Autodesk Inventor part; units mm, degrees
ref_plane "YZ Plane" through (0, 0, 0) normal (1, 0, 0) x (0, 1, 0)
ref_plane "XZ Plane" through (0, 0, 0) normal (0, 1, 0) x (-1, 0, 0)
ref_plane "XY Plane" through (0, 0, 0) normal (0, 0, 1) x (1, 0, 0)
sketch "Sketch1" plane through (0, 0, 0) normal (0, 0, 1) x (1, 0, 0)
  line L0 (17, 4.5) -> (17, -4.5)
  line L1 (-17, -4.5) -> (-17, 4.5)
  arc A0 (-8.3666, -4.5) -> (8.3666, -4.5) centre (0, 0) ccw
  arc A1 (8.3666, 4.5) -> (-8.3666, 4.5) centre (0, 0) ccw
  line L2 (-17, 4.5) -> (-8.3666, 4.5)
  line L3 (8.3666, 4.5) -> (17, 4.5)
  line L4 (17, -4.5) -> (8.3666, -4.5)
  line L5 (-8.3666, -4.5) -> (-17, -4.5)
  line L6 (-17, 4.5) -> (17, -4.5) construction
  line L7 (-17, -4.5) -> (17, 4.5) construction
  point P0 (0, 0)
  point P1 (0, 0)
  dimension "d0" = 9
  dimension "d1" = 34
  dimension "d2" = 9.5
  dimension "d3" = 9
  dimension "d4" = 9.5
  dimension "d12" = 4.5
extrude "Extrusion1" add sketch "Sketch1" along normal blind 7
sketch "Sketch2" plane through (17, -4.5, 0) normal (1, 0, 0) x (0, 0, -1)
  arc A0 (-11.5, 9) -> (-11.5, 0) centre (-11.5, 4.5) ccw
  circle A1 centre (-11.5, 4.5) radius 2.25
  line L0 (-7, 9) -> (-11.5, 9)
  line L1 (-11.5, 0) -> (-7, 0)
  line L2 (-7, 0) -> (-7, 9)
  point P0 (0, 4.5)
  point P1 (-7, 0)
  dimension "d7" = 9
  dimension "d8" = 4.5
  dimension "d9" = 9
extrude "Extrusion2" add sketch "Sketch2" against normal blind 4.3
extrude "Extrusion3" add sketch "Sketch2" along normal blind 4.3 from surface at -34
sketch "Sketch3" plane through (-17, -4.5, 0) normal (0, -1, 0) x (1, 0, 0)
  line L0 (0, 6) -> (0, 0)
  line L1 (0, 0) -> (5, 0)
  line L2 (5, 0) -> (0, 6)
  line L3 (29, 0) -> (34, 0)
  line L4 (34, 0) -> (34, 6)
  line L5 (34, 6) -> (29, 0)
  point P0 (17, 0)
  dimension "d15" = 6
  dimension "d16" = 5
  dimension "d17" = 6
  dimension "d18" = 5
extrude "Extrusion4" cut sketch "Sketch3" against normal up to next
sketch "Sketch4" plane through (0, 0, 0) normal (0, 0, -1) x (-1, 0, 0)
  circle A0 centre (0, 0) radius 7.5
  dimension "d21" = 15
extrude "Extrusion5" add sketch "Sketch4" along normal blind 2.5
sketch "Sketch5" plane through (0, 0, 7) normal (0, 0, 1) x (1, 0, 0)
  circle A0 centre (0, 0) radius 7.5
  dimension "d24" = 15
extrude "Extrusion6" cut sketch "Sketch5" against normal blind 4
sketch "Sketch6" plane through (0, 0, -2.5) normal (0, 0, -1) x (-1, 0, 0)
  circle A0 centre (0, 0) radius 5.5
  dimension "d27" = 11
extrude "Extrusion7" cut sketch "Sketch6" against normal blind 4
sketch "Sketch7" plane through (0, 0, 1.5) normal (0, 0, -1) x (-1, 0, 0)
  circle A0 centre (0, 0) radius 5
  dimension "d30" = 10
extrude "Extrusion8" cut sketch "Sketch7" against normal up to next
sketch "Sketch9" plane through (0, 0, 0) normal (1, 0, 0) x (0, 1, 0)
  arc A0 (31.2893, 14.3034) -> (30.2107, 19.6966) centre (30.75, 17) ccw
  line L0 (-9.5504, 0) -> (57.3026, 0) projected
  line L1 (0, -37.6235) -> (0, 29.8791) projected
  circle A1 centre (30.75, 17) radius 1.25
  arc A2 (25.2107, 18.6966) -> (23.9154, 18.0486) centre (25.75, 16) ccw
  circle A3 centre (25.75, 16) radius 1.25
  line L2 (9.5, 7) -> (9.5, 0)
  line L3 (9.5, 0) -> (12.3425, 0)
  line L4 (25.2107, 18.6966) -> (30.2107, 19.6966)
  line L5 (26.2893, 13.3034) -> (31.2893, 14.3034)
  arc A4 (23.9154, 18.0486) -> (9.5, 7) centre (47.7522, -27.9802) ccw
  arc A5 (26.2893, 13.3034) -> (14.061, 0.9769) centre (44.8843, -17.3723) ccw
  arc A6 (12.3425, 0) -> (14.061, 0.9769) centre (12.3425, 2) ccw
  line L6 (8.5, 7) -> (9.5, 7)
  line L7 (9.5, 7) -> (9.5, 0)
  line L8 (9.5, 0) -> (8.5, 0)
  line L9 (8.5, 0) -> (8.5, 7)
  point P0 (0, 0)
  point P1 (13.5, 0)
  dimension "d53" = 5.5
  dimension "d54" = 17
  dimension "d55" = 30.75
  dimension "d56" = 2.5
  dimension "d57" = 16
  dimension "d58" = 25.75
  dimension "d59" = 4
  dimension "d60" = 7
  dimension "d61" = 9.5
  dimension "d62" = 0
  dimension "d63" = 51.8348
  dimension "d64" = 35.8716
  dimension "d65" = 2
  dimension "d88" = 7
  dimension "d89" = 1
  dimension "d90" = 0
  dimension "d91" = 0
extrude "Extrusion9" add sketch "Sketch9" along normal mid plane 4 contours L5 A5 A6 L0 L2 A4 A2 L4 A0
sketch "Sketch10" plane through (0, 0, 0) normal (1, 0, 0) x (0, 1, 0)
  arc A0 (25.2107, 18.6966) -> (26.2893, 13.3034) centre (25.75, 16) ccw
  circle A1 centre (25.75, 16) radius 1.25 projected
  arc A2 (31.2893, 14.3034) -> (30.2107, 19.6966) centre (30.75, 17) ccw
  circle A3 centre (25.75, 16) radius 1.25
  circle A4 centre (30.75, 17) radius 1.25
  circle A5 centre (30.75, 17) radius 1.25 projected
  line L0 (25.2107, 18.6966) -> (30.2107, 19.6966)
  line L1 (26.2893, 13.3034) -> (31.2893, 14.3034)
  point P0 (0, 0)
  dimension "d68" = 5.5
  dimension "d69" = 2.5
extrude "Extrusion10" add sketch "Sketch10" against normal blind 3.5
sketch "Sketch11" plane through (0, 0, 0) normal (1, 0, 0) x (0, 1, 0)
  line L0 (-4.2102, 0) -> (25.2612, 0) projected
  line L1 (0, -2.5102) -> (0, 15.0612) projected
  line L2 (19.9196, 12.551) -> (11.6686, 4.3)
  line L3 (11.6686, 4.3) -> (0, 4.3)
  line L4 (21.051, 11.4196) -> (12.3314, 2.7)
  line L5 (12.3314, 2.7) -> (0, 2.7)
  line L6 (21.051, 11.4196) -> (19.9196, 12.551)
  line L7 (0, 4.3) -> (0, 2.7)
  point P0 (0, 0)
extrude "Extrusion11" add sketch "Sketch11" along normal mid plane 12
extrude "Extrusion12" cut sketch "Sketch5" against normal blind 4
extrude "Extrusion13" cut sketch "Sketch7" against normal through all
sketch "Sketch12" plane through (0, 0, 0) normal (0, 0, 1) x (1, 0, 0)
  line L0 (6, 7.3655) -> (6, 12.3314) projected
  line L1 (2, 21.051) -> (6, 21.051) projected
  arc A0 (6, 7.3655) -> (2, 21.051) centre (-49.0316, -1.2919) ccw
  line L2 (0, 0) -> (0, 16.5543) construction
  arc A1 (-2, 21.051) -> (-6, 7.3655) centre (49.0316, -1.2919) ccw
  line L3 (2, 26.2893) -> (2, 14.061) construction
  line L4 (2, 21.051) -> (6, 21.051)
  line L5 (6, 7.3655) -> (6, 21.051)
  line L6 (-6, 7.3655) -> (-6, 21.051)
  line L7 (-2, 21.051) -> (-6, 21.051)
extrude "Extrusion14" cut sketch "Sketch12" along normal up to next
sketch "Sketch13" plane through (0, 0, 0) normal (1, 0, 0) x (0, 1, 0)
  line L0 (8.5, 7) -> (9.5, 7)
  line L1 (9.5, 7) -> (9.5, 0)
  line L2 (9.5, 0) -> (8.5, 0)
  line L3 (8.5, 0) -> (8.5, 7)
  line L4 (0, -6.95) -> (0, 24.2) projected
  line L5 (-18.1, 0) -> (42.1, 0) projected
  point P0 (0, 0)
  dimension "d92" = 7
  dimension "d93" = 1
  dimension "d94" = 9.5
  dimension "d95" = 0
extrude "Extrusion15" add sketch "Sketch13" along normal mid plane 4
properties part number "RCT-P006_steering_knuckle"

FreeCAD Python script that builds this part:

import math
import FreeCAD as App
import Part
import Sketcher

V = App.Vector
Q = App.Units.Quantity

doc = App.newDocument("Part")
body = doc.addObject("PartDesign::Body", "Body")
body.AllowCompound = True

sketch1 = doc.addObject("Sketcher::SketchObject", "Sketch")
body.addObject(sketch1)
sketch1.AttachmentSupport = (doc.XY_Plane, [""])
sketch1.MapMode = "FlatFace"
sketch1.addGeometry([
    Part.LineSegment(V(17, -4, 0), V(17, 4, 0)),
    Part.LineSegment(V(17, 4, 0), V(8, 4, 0)),
    Part.ArcOfCircle(Part.Circle(V(0, 0, 0), V(0, 0, 1), 9), math.radians(28), math.radians(152)),
    Part.LineSegment(V(-8, 4, 0), V(-17, 4, 0)),
    Part.LineSegment(V(-17, 4, 0), V(-17, -4, 0)),
    Part.LineSegment(V(-17, -4, 0), V(-8, -4, 0)),
    Part.ArcOfCircle(Part.Circle(V(0, 0, 0), V(0, 0, 1), 9), math.radians(-152), math.radians(-28)),
    Part.LineSegment(V(8, -4, 0), V(17, -4, 0)),
], False)
sketch1.addConstraint([
    Sketcher.Constraint("Coincident", 0, 2, 1, 1),
    Sketcher.Constraint("Coincident", 1, 2, 2, 1),
    Sketcher.Constraint("Coincident", 2, 2, 3, 1),
    Sketcher.Constraint("Coincident", 3, 2, 4, 1),
    Sketcher.Constraint("Coincident", 4, 2, 5, 1),
    Sketcher.Constraint("Coincident", 5, 2, 6, 1),
    Sketcher.Constraint("Coincident", 6, 2, 7, 1),
    Sketcher.Constraint("Coincident", 7, 2, 0, 1),
    Sketcher.Constraint("Vertical", 0),
    Sketcher.Constraint("Horizontal", 1),
    Sketcher.Constraint("Horizontal", 3),
    Sketcher.Constraint("Vertical", 4),
    Sketcher.Constraint("Horizontal", 5),
    Sketcher.Constraint("Horizontal", 7),
    Sketcher.Constraint("Coincident", 2, 3, -1, 1),
    Sketcher.Constraint("Coincident", 6, 3, -1, 1),
    Sketcher.Constraint("Equal", 2, 6),
    Sketcher.Constraint("Symmetric", 0, 2, 4, 2, -1, 1),
    Sketcher.Constraint("Horizontal", 1, 2, 2, 2),
    Sketcher.Constraint("Horizontal", 5, 2, 6, 2),
    Sketcher.Constraint("Radius", 2, Q("9.5 mm")),
    Sketcher.Constraint("DistanceY", 0, 1, 0, 2, Q("9 mm")),
    Sketcher.Constraint("DistanceX", 3, 2, 0, 2, Q("34 mm")),
])
pad1 = doc.addObject("PartDesign::Pad", "Pad")
body.addObject(pad1)
pad1.Profile = sketch1
pad1.Length = 7

sketch2 = doc.addObject("Sketcher::SketchObject", "Sketch001")
body.addObject(sketch2)
sketch2.AttachmentSupport = (doc.YZ_Plane, [""])
sketch2.MapMode = "FlatFace"
sketch2.AttachmentOffset = App.Placement(V(0, 0, 17), App.Rotation())
sketch2.addGeometry([
    Part.LineSegment(V(4.5, 7, 0), V(4.5, 11.5, 0)),
    Part.ArcOfCircle(Part.Circle(V(0, 11.5, 0), V(0, 0, 1), 4.5), math.radians(0), math.radians(180)),
    Part.LineSegment(V(-4.5, 11.5, 0), V(-4.5, 7, 0)),
    Part.LineSegment(V(-4.5, 7, 0), V(4.5, 7, 0)),
    Part.Circle(V(0, 11.5, 0), V(0, 0, 1), 2.2),
], False)
sketch2.addConstraint([
    Sketcher.Constraint("Tangent", 0, 2, 1, 1),
    Sketcher.Constraint("Tangent", 1, 2, 2, 1),
    Sketcher.Constraint("Coincident", 2, 2, 3, 1),
    Sketcher.Constraint("Coincident", 3, 2, 0, 1),
    Sketcher.Constraint("Vertical", 0),
    Sketcher.Constraint("Vertical", 2),
    Sketcher.Constraint("Horizontal", 3),
    Sketcher.Constraint("Coincident", 4, 3, 1, 3),
    Sketcher.Constraint("PointOnObject", 1, 3, -2),
    Sketcher.Constraint("Diameter", 4, Q("4.5 mm")),
    Sketcher.Constraint("Radius", 1, Q("4.5 mm")),
    Sketcher.Constraint("DistanceY", 0, 1, 0, 2, Q("4.5 mm")),
    Sketcher.Constraint("DistanceY", -1, 1, 2, 2, Q("7 mm")),
])
pad2 = doc.addObject("PartDesign::Pad", "Pad001")
body.addObject(pad2)
pad2.Profile = sketch2
pad2.Length = 4.3
pad2.Reversed = True

sketch3 = doc.addObject("Sketcher::SketchObject", "Sketch002")
body.addObject(sketch3)
sketch3.AttachmentSupport = (doc.YZ_Plane, [""])
sketch3.MapMode = "FlatFace"
sketch3.AttachmentOffset = App.Placement(V(0, 0, -17), App.Rotation())
sketch3.addGeometry([
    Part.LineSegment(V(4.5, 7, 0), V(4.5, 11.5, 0)),
    Part.ArcOfCircle(Part.Circle(V(0, 11.5, 0), V(0, 0, 1), 4.5), math.radians(0), math.radians(180)),
    Part.LineSegment(V(-4.5, 11.5, 0), V(-4.5, 7, 0)),
    Part.LineSegment(V(-4.5, 7, 0), V(4.5, 7, 0)),
    Part.Circle(V(0, 11.5, 0), V(0, 0, 1), 2.2),
], False)
sketch3.addConstraint([
    Sketcher.Constraint("Tangent", 0, 2, 1, 1),
    Sketcher.Constraint("Tangent", 1, 2, 2, 1),
    Sketcher.Constraint("Coincident", 2, 2, 3, 1),
    Sketcher.Constraint("Coincident", 3, 2, 0, 1),
    Sketcher.Constraint("Vertical", 0),
    Sketcher.Constraint("Vertical", 2),
    Sketcher.Constraint("Horizontal", 3),
    Sketcher.Constraint("Coincident", 4, 3, 1, 3),
    Sketcher.Constraint("PointOnObject", 1, 3, -2),
    Sketcher.Constraint("Diameter", 4, Q("4.5 mm")),
    Sketcher.Constraint("Radius", 1, Q("4.5 mm")),
    Sketcher.Constraint("DistanceY", 0, 1, 0, 2, Q("4.5 mm")),
    Sketcher.Constraint("DistanceY", -1, 1, 2, 2, Q("7 mm")),
])
pad3 = doc.addObject("PartDesign::Pad", "Pad002")
body.addObject(pad3)
pad3.Profile = sketch3
pad3.Length = 4.3

sketch4 = doc.addObject("Sketcher::SketchObject", "Sketch003")
body.addObject(sketch4)
sketch4.AttachmentSupport = (doc.XZ_Plane, [""])
sketch4.MapMode = "FlatFace"
sketch4.AttachmentOffset = App.Placement(V(0, 0, 4.5), App.Rotation())
sketch4.addGeometry([
    Part.LineSegment(V(-12, 0, 0), V(-17, 6, 0)),
    Part.LineSegment(V(-17, 6, 0), V(-17, 0, 0)),
    Part.LineSegment(V(-17, 0, 0), V(-12, 0, 0)),
    Part.LineSegment(V(17, 6, 0), V(12, 0, 0)),
    Part.LineSegment(V(12, 0, 0), V(17, 0, 0)),
    Part.LineSegment(V(17, 0, 0), V(17, 6, 0)),
], False)
sketch4.addConstraint([
    Sketcher.Constraint("Coincident", 0, 2, 1, 1),
    Sketcher.Constraint("Coincident", 1, 2, 2, 1),
    Sketcher.Constraint("Coincident", 2, 2, 0, 1),
    Sketcher.Constraint("Coincident", 3, 2, 4, 1),
    Sketcher.Constraint("Coincident", 4, 2, 5, 1),
    Sketcher.Constraint("Coincident", 5, 2, 3, 1),
    Sketcher.Constraint("Vertical", 1),
    Sketcher.Constraint("Horizontal", 2),
    Sketcher.Constraint("Horizontal", 4),
    Sketcher.Constraint("Vertical", 5),
    Sketcher.Constraint("Symmetric", 2, 2, 3, 2, -1, 1),
    Sketcher.Constraint("Symmetric", 1, 2, 4, 2, -2),
    Sketcher.Constraint("Horizontal", 0, 2, 5, 2),
    Sketcher.Constraint("DistanceX", 2, 1, 2, 2, Q("5 mm")),
    Sketcher.Constraint("DistanceY", 1, 2, 1, 1, Q("6 mm")),
    Sketcher.Constraint("DistanceX", 0, 2, -1, 1, Q("17 mm")),
])
pocket1 = doc.addObject("PartDesign::Pocket", "Pocket")
body.addObject(pocket1)
pocket1.Profile = sketch4
pocket1.Length = 9

sketch5 = doc.addObject("Sketcher::SketchObject", "Sketch004")
body.addObject(sketch5)
sketch5.AttachmentSupport = (doc.XY_Plane, [""])
sketch5.MapMode = "FlatFace"
sketch5.addGeometry(Part.Circle(V(0, 0, 0), V(0, 0, 1), 8), False)
sketch5.addConstraint([
    Sketcher.Constraint("Coincident", 0, 3, -1, 1),
    Sketcher.Constraint("Diameter", 0, Q("15 mm")),
])
pad4 = doc.addObject("PartDesign::Pad", "Pad003")
body.addObject(pad4)
pad4.Profile = sketch5
pad4.Length = 2.5
pad4.Reversed = True

sketch6 = doc.addObject("Sketcher::SketchObject", "Sketch005")
body.addObject(sketch6)
sketch6.AttachmentSupport = (doc.XY_Plane, [""])
sketch6.MapMode = "FlatFace"
sketch6.AttachmentOffset = App.Placement(V(0, 0, 7), App.Rotation())
sketch6.addGeometry(Part.Circle(V(0, 0, 0), V(0, 0, 1), 8), False)
sketch6.addConstraint([
    Sketcher.Constraint("Coincident", 0, 3, -1, 1),
    Sketcher.Constraint("Diameter", 0, Q("15 mm")),
])
pocket2 = doc.addObject("PartDesign::Pocket", "Pocket001")
body.addObject(pocket2)
pocket2.Profile = sketch6
pocket2.Length = 4

sketch7 = doc.addObject("Sketcher::SketchObject", "Sketch006")
body.addObject(sketch7)
sketch7.AttachmentSupport = (doc.XY_Plane, [""])
sketch7.MapMode = "FlatFace"
sketch7.AttachmentOffset = App.Placement(V(0, 0, -2.5), App.Rotation())
sketch7.addGeometry(Part.Circle(V(0, 0, 0), V(0, 0, 1), 6), False)
sketch7.addConstraint([
    Sketcher.Constraint("Coincident", 0, 3, -1, 1),
    Sketcher.Constraint("Diameter", 0, Q("11 mm")),
])
pocket3 = doc.addObject("PartDesign::Pocket", "Pocket002")
body.addObject(pocket3)
pocket3.Profile = sketch7
pocket3.Length = 4
pocket3.Reversed = True

sketch8 = doc.addObject("Sketcher::SketchObject", "Sketch007")
body.addObject(sketch8)
sketch8.AttachmentSupport = (doc.XY_Plane, [""])
sketch8.MapMode = "FlatFace"
sketch8.AttachmentOffset = App.Placement(V(0, 0, 1.5), App.Rotation())
sketch8.addGeometry(Part.Circle(V(0, 0, 0), V(0, 0, 1), 5), False)
sketch8.addConstraint([
    Sketcher.Constraint("Coincident", 0, 3, -1, 1),
    Sketcher.Constraint("Diameter", 0, Q("10 mm")),
])
pocket4 = doc.addObject("PartDesign::Pocket", "Pocket003")
body.addObject(pocket4)
pocket4.Profile = sketch8
pocket4.Type = "UpToFirst"
pocket4.Reversed = True

sketch9 = doc.addObject("Sketcher::SketchObject", "Sketch008")
body.addObject(sketch9)
sketch9.AttachmentSupport = (doc.YZ_Plane, [""])
sketch9.MapMode = "FlatFace"
sketch9.addGeometry([
    Part.LineSegment(V(26.3, 13.3, 0), V(31.3, 14.3, 0)),
    Part.ArcOfCircle(Part.Circle(V(30.8, 17, 0), V(0, 0, 1), 2.7), math.radians(-79), math.radians(101)),
    Part.LineSegment(V(30.2, 19.7, 0), V(25.2, 18.7, 0)),
    Part.ArcOfCircle(Part.Circle(V(25.8, 16, 0), V(0, 0, 1), 2.7), math.radians(101), math.radians(132)),
    Part.ArcOfCircle(Part.Circle(V(47.8, -28, 0), V(0, 0, 1), 51.8), math.radians(117), math.radians(138)),
    Part.LineSegment(V(9.5, 7, 0), V(9.5, 0, 0)),
    Part.LineSegment(V(9.5, 0, 0), V(12.3, 0, 0)),
    Part.ArcOfCircle(Part.Circle(V(12.3, 2, 0), V(0, 0, 1), 2), math.radians(-90), math.radians(-31)),
    Part.ArcOfCircle(Part.Circle(V(44.9, -17.4, 0), V(0, 0, 1), 35.9), math.radians(121), math.radians(149)),
    Part.Circle(V(25.8, 16, 0), V(0, 0, 1), 1.2),
    Part.Circle(V(30.8, 17, 0), V(0, 0, 1), 1.2),
], False)
sketch9.addConstraint([
    Sketcher.Constraint("Tangent", 0, 2, 1, 1),
    Sketcher.Constraint("Tangent", 1, 2, 2, 1),
    Sketcher.Constraint("Tangent", 2, 2, 3, 1),
    Sketcher.Constraint("Coincident", 3, 2, 4, 1),
    Sketcher.Constraint("Coincident", 4, 2, 5, 1),
    Sketcher.Constraint("Coincident", 5, 2, 6, 1),
    Sketcher.Constraint("Tangent", 6, 2, 7, 1),
    Sketcher.Constraint("Tangent", 7, 2, 8, 2),
    Sketcher.Constraint("Coincident", 8, 1, 0, 1),
    Sketcher.Constraint("Vertical", 5),
    Sketcher.Constraint("Horizontal", 6),
    Sketcher.Constraint("Coincident", 9, 3, 3, 3),
    Sketcher.Constraint("Coincident", 10, 3, 1, 3),
    Sketcher.Constraint("Equal", 1, 3),
    Sketcher.Constraint("Equal", 9, 10),
    Sketcher.Constraint("PointOnObject", 5, 2, -1),
    Sketcher.Constraint("Parallel", 0, 2),
    Sketcher.Constraint("Equal", 0, 2),
    Sketcher.Constraint("Radius", 7, Q("2 mm")),
    Sketcher.Constraint("Diameter", 9, Q("2.5 mm")),
    Sketcher.Constraint("DistanceY", 5, 2, 5, 1, Q("7 mm")),
    Sketcher.Constraint("Radius", 1, Q("2.75 mm")),
    Sketcher.Constraint("DistanceY", -1, 1, 1, 3, Q("17 mm")),
    Sketcher.Constraint("DistanceY", -1, 1, 3, 3, Q("16 mm")),
    Sketcher.Constraint("DistanceX", -1, 1, 4, 2, Q("9.5 mm")),
    Sketcher.Constraint("Radius", 4, Q("51.8348 mm")),
    Sketcher.Constraint("Radius", 8, Q("35.8716 mm")),
    Sketcher.Constraint("DistanceX", -1, 1, 1, 3, Q("30.75 mm")),
    Sketcher.Constraint("DistanceX", -1, 1, 3, 3, Q("25.75 mm")),
    Sketcher.Constraint("DistanceX", 6, 1, 6, 2, Q("2.8425 mm")),
    Sketcher.Constraint("DistanceX", 8, 3, 4, 3, Q("2.868 mm")),
])
pad5 = doc.addObject("PartDesign::Pad", "Pad004")
body.addObject(pad5)
pad5.Profile = sketch9
pad5.Length = 4
pad5.Midplane = True

sketch10 = doc.addObject("Sketcher::SketchObject", "Sketch009")
body.addObject(sketch10)
sketch10.AttachmentSupport = (doc.YZ_Plane, [""])
sketch10.MapMode = "FlatFace"
sketch10.addGeometry([
    Part.LineSegment(V(30.2, 19.7, 0), V(25.2, 18.7, 0)),
    Part.ArcOfCircle(Part.Circle(V(25.8, 16, 0), V(0, 0, 1), 2.7), math.radians(101), math.radians(281)),
    Part.LineSegment(V(26.3, 13.3, 0), V(31.3, 14.3, 0)),
    Part.ArcOfCircle(Part.Circle(V(30.8, 17, 0), V(0, 0, 1), 2.7), math.radians(-79), math.radians(101)),
    Part.Circle(V(25.8, 16, 0), V(0, 0, 1), 1.2),
    Part.Circle(V(30.8, 17, 0), V(0, 0, 1), 1.2),
], False)
sketch10.addConstraint([
    Sketcher.Constraint("Tangent", 0, 2, 1, 1),
    Sketcher.Constraint("Tangent", 1, 2, 2, 1),
    Sketcher.Constraint("Tangent", 2, 2, 3, 1),
    Sketcher.Constraint("Tangent", 3, 2, 0, 1),
    Sketcher.Constraint("Coincident", 4, 3, 1, 3),
    Sketcher.Constraint("Coincident", 5, 3, 3, 3),
    Sketcher.Constraint("Equal", 1, 3),
    Sketcher.Constraint("Equal", 4, 5),
    Sketcher.Constraint("Diameter", 4, Q("2.5 mm")),
    Sketcher.Constraint("Radius", 1, Q("2.75 mm")),
    Sketcher.Constraint("DistanceY", -1, 1, 1, 3, Q("16 mm")),
    Sketcher.Constraint("DistanceY", -1, 1, 3, 3, Q("17 mm")),
    Sketcher.Constraint("DistanceX", 1, 3, 3, 3, Q("5 mm")),
    Sketcher.Constraint("DistanceX", -1, 1, 1, 3, Q("25.75 mm")),
])
pad6 = doc.addObject("PartDesign::Pad", "Pad005")
body.addObject(pad6)
pad6.Profile = sketch10
pad6.Length = 3.5
pad6.Reversed = True

sketch11 = doc.addObject("Sketcher::SketchObject", "Sketch010")
body.addObject(sketch11)
sketch11.AttachmentSupport = (doc.YZ_Plane, [""])
sketch11.MapMode = "FlatFace"
sketch11.addGeometry([
    Part.LineSegment(V(0, 4.3, 0), V(0, 2.7, 0)),
    Part.LineSegment(V(0, 2.7, 0), V(12.3, 2.7, 0)),
    Part.LineSegment(V(12.3, 2.7, 0), V(21.1, 11.4, 0)),
    Part.LineSegment(V(21.1, 11.4, 0), V(19.9, 12.6, 0)),
    Part.LineSegment(V(19.9, 12.6, 0), V(11.7, 4.3, 0)),
    Part.LineSegment(V(11.7, 4.3, 0), V(0, 4.3, 0)),
], False)
sketch11.addConstraint([
    Sketcher.Constraint("Coincident", 0, 2, 1, 1),
    Sketcher.Constraint("Coincident", 1, 2, 2, 1),
    Sketcher.Constraint("Coincident", 2, 2, 3, 1),
    Sketcher.Constraint("Coincident", 3, 2, 4, 1),
    Sketcher.Constraint("Coincident", 4, 2, 5, 1),
    Sketcher.Constraint("Coincident", 5, 2, 0, 1),
    Sketcher.Constraint("Vertical", 0),
    Sketcher.Constraint("Horizontal", 1),
    Sketcher.Constraint("Horizontal", 5),
    Sketcher.Constraint("PointOnObject", 0, 2, -2),
    Sketcher.Constraint("Perpendicular", 2, 3),
    Sketcher.Constraint("Perpendicular", 3, 4),
    Sketcher.Constraint("Angle", 2, Q("45 deg")),
    Sketcher.Constraint("DistanceY", 0, 2, 0, 1, Q("1.6 mm")),
    Sketcher.Constraint("Distance", 3, Q("1.6 mm")),
    Sketcher.Constraint("DistanceY", -1, 1, 0, 2, Q("2.7 mm")),
    Sketcher.Constraint("DistanceX", 1, 1, 1, 2, Q("12.3314 mm")),
    Sketcher.Constraint("DistanceX", -1, 1, 2, 2, Q("21.051 mm")),
])
pad7 = doc.addObject("PartDesign::Pad", "Pad006")
body.addObject(pad7)
pad7.Profile = sketch11
pad7.Length = 12
pad7.Midplane = True

sketch12 = doc.addObject("Sketcher::SketchObject", "Sketch011")
body.addObject(sketch12)
sketch12.AttachmentSupport = (doc.XY_Plane, [""])
sketch12.MapMode = "FlatFace"
sketch12.AttachmentOffset = App.Placement(V(0, 0, 7), App.Rotation())
sketch12.addGeometry(Part.Circle(V(0, 0, 0), V(0, 0, 1), 8), False)
sketch12.addConstraint([
    Sketcher.Constraint("Coincident", 0, 3, -1, 1),
    Sketcher.Constraint("Diameter", 0, Q("15 mm")),
])
pocket5 = doc.addObject("PartDesign::Pocket", "Pocket004")
body.addObject(pocket5)
pocket5.Profile = sketch12
pocket5.Length = 4

sketch13 = doc.addObject("Sketcher::SketchObject", "Sketch012")
body.addObject(sketch13)
sketch13.AttachmentSupport = (doc.XY_Plane, [""])
sketch13.MapMode = "FlatFace"
sketch13.AttachmentOffset = App.Placement(V(0, 0, 1.5), App.Rotation())
sketch13.addGeometry(Part.Circle(V(0, 0, 0), V(0, 0, 1), 5), False)
sketch13.addConstraint([
    Sketcher.Constraint("Coincident", 0, 3, -1, 1),
    Sketcher.Constraint("Diameter", 0, Q("10 mm")),
])
pocket6 = doc.addObject("PartDesign::Pocket", "Pocket005")
body.addObject(pocket6)
pocket6.Profile = sketch13
pocket6.Type = "ThroughAll"
pocket6.Reversed = True

sketch14 = doc.addObject("Sketcher::SketchObject", "Sketch013")
body.addObject(sketch14)
sketch14.AttachmentSupport = (doc.XY_Plane, [""])
sketch14.MapMode = "FlatFace"
sketch14.addGeometry([
    Part.ArcOfCircle(Part.Circle(V(-49, -1.3, 0), V(0, 0, 1), 55.7), math.radians(8.94), math.radians(23.64)),
    Part.LineSegment(V(6, 7.4, 0), V(6, 21.1, 0)),
    Part.LineSegment(V(6, 21.1, 0), V(2, 21.1, 0)),
    Part.ArcOfCircle(Part.Circle(V(49, -1.3, 0), V(0, 0, 1), 55.7), math.radians(156.36), math.radians(171.06)),
    Part.LineSegment(V(-2, 21.1, 0), V(-6, 21.1, 0)),
    Part.LineSegment(V(-6, 21.1, 0), V(-6, 7.4, 0)),
], False)
sketch14.addConstraint([
    Sketcher.Constraint("Coincident", 0, 1, 1, 1),
    Sketcher.Constraint("Coincident", 1, 2, 2, 1),
    Sketcher.Constraint("Coincident", 2, 2, 0, 2),
    Sketcher.Constraint("Coincident", 3, 1, 4, 1),
    Sketcher.Constraint("Coincident", 4, 2, 5, 1),
    Sketcher.Constraint("Coincident", 5, 2, 3, 2),
    Sketcher.Constraint("Vertical", 1),
    Sketcher.Constraint("Horizontal", 2),
    Sketcher.Constraint("Horizontal", 4),
    Sketcher.Constraint("Vertical", 5),
    Sketcher.Constraint("Equal", 0, 3),
    Sketcher.Constraint("Symmetric", 0, 3, 3, 3, -2),
    Sketcher.Constraint("Symmetric", 1, 2, 4, 2, -2),
    Sketcher.Constraint("DistanceX", 2, 2, 2, 1, Q("4 mm")),
    Sketcher.Constraint("DistanceX", -1, 1, 0, 1, Q("6 mm")),
    Sketcher.Constraint("Radius", 0, Q("55.7084 mm")),
    Sketcher.Constraint("DistanceY", 1, 1, 1, 2, Q("13.6855 mm")),
    Sketcher.Constraint("DistanceY", 0, 3, -1, 1, Q("1.292 mm")),
])
pocket7 = doc.addObject("PartDesign::Pocket", "Pocket006")
body.addObject(pocket7)
pocket7.Profile = sketch14
pocket7.Type = "UpToFirst"
pocket7.Reversed = True

sketch15 = doc.addObject("Sketcher::SketchObject", "Sketch014")
body.addObject(sketch15)
sketch15.AttachmentSupport = (doc.YZ_Plane, [""])
sketch15.MapMode = "FlatFace"
sketch15.addGeometry([
    Part.LineSegment(V(9.5, 7, 0), V(8.5, 7, 0)),
    Part.LineSegment(V(8.5, 7, 0), V(8.5, 0, 0)),
    Part.LineSegment(V(8.5, 0, 0), V(9.5, 0, 0)),
    Part.LineSegment(V(9.5, 0, 0), V(9.5, 7, 0)),
], False)
sketch15.addConstraint([
    Sketcher.Constraint("Coincident", 0, 2, 1, 1),
    Sketcher.Constraint("Coincident", 1, 2, 2, 1),
    Sketcher.Constraint("Coincident", 2, 2, 3, 1),
    Sketcher.Constraint("Coincident", 3, 2, 0, 1),
    Sketcher.Constraint("Horizontal", 0),
    Sketcher.Constraint("Vertical", 1),
    Sketcher.Constraint("Horizontal", 2),
    Sketcher.Constraint("Vertical", 3),
    Sketcher.Constraint("PointOnObject", 1, 2, -1),
    Sketcher.Constraint("DistanceX", 0, 2, 0, 1, Q("1 mm")),
    Sketcher.Constraint("DistanceY", 1, 2, 1, 1, Q("7 mm")),
    Sketcher.Constraint("DistanceX", -1, 1, 2, 2, Q("9.5 mm")),
])
pad8 = doc.addObject("PartDesign::Pad", "Pad007")
body.addObject(pad8)
pad8.Profile = sketch15
pad8.Length = 4
pad8.Midplane = True

doc.recompute()
